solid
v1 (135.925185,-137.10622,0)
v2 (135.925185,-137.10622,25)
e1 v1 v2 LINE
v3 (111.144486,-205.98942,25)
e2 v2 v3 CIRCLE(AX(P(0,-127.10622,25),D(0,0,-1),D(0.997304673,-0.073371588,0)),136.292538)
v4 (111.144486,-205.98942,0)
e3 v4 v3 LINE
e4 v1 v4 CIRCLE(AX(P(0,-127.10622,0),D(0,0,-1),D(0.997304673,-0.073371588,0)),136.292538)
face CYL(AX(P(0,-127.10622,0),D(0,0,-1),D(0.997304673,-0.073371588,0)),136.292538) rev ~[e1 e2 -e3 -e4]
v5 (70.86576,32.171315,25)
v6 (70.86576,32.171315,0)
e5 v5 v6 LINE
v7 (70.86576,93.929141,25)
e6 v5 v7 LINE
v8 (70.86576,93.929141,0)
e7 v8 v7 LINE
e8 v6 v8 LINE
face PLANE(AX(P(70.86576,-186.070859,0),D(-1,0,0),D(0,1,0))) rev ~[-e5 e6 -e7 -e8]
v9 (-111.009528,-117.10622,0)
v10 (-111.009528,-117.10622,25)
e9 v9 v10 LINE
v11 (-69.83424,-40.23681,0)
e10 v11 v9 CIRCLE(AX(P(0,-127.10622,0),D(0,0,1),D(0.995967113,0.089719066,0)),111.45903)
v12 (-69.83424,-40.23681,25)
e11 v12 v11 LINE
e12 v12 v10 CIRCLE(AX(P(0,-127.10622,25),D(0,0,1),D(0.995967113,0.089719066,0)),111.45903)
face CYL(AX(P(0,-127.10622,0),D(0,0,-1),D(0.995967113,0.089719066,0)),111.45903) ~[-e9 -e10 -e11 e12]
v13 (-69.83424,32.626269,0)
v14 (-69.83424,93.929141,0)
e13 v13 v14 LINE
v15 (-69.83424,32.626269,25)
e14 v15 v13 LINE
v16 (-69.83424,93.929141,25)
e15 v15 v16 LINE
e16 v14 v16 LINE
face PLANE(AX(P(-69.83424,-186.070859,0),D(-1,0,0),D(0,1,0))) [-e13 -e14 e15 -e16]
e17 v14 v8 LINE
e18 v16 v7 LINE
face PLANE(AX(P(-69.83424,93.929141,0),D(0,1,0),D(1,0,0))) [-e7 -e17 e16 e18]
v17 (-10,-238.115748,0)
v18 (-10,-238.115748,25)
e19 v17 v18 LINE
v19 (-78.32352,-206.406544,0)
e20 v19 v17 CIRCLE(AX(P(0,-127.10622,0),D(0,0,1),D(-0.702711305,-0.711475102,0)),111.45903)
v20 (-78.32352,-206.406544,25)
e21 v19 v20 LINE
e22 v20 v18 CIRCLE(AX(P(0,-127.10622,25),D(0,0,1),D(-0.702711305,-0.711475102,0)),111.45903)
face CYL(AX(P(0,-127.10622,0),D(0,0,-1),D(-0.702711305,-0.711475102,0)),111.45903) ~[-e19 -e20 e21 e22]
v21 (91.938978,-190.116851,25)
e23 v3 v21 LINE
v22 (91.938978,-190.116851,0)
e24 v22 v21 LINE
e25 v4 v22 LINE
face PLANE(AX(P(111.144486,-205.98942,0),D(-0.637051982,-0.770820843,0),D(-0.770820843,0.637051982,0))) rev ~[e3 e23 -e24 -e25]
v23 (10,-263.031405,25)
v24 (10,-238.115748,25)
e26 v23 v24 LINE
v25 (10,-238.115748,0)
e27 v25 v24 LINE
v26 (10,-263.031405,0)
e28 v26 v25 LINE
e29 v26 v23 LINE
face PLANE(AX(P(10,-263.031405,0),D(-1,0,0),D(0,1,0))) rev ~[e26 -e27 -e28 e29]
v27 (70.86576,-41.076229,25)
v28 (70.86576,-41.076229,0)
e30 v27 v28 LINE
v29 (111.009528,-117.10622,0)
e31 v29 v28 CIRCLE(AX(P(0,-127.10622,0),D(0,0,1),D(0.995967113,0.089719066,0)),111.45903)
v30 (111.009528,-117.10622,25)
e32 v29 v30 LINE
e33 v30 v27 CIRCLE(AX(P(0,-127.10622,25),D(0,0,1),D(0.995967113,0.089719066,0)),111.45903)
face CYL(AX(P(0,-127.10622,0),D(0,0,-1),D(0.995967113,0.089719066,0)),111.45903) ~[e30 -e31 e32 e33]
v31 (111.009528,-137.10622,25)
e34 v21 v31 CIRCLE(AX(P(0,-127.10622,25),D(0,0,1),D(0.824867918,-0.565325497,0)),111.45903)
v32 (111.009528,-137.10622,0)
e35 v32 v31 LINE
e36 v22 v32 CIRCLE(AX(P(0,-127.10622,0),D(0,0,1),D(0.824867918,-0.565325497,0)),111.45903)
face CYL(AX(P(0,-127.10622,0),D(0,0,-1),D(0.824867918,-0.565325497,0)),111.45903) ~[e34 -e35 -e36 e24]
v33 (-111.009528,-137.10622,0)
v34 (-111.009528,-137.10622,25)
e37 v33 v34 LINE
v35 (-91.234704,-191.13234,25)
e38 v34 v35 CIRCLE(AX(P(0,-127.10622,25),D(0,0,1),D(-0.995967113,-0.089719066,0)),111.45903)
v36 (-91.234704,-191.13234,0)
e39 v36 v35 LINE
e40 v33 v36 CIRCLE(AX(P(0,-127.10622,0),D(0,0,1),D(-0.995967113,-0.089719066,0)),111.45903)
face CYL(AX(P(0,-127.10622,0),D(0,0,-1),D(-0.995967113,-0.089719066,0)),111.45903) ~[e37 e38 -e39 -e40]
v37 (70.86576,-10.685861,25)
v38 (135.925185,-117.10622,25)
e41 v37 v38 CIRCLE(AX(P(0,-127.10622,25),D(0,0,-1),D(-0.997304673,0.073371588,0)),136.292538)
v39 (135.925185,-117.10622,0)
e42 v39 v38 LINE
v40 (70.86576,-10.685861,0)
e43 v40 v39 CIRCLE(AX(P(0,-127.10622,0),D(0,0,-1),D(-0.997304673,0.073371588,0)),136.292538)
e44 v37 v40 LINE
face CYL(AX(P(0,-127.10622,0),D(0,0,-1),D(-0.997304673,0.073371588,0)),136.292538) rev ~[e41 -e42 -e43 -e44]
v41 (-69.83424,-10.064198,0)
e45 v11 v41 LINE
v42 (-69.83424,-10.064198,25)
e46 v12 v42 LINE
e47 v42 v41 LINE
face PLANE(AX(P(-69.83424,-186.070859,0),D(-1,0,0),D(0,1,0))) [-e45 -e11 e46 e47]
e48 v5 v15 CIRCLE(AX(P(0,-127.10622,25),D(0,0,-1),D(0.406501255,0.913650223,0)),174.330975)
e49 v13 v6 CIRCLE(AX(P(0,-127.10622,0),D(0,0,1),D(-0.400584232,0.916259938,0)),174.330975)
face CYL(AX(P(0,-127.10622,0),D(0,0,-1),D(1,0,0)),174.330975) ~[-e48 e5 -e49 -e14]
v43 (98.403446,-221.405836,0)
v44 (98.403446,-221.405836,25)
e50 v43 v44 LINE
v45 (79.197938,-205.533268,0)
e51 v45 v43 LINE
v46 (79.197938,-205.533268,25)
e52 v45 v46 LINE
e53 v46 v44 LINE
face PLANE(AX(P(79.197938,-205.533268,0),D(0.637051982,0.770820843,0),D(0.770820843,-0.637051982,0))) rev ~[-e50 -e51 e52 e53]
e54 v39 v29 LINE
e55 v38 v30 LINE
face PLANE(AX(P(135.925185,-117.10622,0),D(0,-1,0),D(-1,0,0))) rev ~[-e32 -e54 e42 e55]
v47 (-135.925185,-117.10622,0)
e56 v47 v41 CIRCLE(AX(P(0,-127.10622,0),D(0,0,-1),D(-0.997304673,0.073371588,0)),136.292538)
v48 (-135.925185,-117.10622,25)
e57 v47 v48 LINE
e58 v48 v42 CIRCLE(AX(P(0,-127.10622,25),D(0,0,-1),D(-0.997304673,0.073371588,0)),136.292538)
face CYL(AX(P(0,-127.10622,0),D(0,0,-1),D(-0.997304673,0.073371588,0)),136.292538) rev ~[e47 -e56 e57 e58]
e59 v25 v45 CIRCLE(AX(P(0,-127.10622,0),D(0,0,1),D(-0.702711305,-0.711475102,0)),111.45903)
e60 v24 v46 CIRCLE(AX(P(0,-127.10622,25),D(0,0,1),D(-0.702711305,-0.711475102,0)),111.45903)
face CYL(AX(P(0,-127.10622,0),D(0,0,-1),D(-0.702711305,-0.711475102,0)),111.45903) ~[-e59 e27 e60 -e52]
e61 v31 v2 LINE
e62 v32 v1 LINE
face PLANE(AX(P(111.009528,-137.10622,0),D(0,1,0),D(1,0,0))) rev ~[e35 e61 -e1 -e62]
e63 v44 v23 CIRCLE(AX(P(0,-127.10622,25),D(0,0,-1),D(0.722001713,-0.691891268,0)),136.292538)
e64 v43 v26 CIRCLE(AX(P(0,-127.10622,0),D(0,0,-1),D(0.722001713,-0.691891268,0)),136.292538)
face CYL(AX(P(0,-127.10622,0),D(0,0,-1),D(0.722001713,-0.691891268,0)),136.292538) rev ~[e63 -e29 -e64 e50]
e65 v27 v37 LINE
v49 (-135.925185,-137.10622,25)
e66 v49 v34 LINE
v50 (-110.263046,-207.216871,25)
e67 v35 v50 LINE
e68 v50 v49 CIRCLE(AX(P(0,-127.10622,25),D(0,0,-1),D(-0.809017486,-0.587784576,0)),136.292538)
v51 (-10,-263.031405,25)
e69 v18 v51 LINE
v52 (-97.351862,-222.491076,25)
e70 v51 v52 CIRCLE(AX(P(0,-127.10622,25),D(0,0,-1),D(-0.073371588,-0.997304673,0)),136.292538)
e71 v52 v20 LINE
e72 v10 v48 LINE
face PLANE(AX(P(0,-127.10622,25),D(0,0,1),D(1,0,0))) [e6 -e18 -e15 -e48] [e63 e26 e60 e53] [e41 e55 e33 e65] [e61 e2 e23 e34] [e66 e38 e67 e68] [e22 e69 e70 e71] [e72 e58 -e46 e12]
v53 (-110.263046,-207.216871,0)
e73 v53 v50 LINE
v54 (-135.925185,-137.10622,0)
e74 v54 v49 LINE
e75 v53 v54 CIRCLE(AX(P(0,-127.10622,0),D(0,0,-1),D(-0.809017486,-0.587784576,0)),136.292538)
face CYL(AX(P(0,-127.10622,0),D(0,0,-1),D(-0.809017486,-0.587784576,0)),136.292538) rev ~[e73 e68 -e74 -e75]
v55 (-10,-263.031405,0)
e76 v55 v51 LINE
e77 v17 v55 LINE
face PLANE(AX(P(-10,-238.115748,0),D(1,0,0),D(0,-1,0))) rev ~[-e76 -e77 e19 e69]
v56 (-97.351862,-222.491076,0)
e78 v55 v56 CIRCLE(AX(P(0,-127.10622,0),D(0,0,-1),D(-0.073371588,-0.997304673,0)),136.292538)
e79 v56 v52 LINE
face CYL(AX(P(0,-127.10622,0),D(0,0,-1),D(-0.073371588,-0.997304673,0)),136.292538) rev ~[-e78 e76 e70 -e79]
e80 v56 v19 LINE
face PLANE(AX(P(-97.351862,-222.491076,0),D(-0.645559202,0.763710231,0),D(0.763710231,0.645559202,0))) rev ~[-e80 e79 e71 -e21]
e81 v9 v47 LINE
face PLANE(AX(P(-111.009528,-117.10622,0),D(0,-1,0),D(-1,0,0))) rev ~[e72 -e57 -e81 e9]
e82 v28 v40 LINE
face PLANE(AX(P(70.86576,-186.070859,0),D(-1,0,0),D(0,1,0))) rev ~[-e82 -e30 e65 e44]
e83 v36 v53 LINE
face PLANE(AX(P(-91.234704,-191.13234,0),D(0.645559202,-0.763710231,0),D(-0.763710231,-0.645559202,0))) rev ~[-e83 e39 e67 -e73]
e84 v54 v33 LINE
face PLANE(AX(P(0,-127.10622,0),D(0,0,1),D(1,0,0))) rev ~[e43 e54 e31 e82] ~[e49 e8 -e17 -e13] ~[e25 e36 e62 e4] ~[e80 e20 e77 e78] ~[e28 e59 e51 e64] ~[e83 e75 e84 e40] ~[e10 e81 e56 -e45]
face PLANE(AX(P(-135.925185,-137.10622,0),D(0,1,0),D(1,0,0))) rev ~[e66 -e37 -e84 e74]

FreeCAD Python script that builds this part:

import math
import FreeCAD as App
import Part
import Sketcher

doc = App.newDocument("Part")
body = doc.addObject("PartDesign::Body", "Body")

sketch1 = doc.addObject("Sketcher::SketchObject", "Sketch")
body.addObject(sketch1)
sketch1.AttachmentSupport = (doc.XY_Plane, [""])
sketch1.MapMode = "FlatFace"
sketch1.addGeometry([
    Part.LineSegment(App.Vector(-70, 94, 0), App.Vector(-70, -186, 0)),
    Part.LineSegment(App.Vector(-70, -186, 0), App.Vector(71, -186, 0)),
    Part.LineSegment(App.Vector(71, -186, 0), App.Vector(71, 94, 0)),
    Part.LineSegment(App.Vector(71, 94, 0), App.Vector(-70, 94, 0)),
], False)
sketch1.addConstraint([
    Sketcher.Constraint("Coincident", 0, 2, 1, 1),
    Sketcher.Constraint("Coincident", 1, 2, 2, 1),
    Sketcher.Constraint("Coincident", 2, 2, 3, 1),
    Sketcher.Constraint("Coincident", 3, 2, 0, 1),
    Sketcher.Constraint("Vertical", 0),
    Sketcher.Constraint("Horizontal", 1),
    Sketcher.Constraint("Vertical", 2),
    Sketcher.Constraint("Horizontal", 3),
    Sketcher.Constraint("DistanceY", 0, 2, 0, 1, 280.0),
    Sketcher.Constraint("DistanceX", 1, 1, 1, 2, 140.7),
    Sketcher.Constraint("DistanceX", 0, 2, -1, 1, 69.83424),
    Sketcher.Constraint("DistanceY", 0, 2, -1, 1, 186.070859),
])
pad1 = doc.addObject("PartDesign::Pad", "Pad")
body.addObject(pad1)
pad1.Profile = sketch1
pad1.Length = 25

sketch2 = doc.addObject("Sketcher::SketchObject", "Sketch001")
body.addObject(sketch2)
sketch2.AttachmentSupport = (doc.XY_Plane, [""])
sketch2.MapMode = "FlatFace"
sketch2.addGeometry([
    Part.Circle(App.Vector(0, -127, 0), App.Vector(0, 0, 1), 174),
    Part.ArcOfCircle(Part.Circle(App.Vector(0, -127, 0), App.Vector(0, 0, 1), 136), math.radians(4), math.radians(176)),
    Part.LineSegment(App.Vector(136, -117, 0), App.Vector(111, -117, 0)),
    Part.ArcOfCircle(Part.Circle(App.Vector(0, -127, 0), App.Vector(0, 0, 1), 111), math.radians(5), math.radians(175)),
    Part.LineSegment(App.Vector(-111, -117, 0), App.Vector(-136, -117, 0)),
    Part.ArcOfCircle(Part.Circle(App.Vector(0, -127, 0), App.Vector(0, 0, 1), 136), math.radians(-35), math.radians(-4)),
    Part.LineSegment(App.Vector(111, -206, 0), App.Vector(92, -190, 0)),
    Part.ArcOfCircle(Part.Circle(App.Vector(0, -127, 0), App.Vector(0, 0, 1), 111), math.radians(-34), math.radians(-5)),
    Part.LineSegment(App.Vector(111, -137, 0), App.Vector(136, -137, 0)),
    Part.ArcOfCircle(Part.Circle(App.Vector(0, -127, 0), App.Vector(0, 0, 1), 136), math.radians(-86), math.radians(-44)),
    Part.LineSegment(App.Vector(10, -263, 0), App.Vector(10, -238, 0)),
    Part.ArcOfCircle(Part.Circle(App.Vector(0, -127, 0), App.Vector(0, 0, 1), 111), math.radians(-85), math.radians(-45)),
    Part.LineSegment(App.Vector(79, -206, 0), App.Vector(98, -221, 0)),
    Part.ArcOfCircle(Part.Circle(App.Vector(0, -127, 0), App.Vector(0, 0, 1), 111), math.radians(-175), math.radians(-145)),
    Part.LineSegment(App.Vector(-91, -191, 0), App.Vector(-110, -207, 0)),
    Part.ArcOfCircle(Part.Circle(App.Vector(0, -127, 0), App.Vector(0, 0, 1), 136), math.radians(-176), math.radians(-144)),
    Part.LineSegment(App.Vector(-136, -137, 0), App.Vector(-111, -137, 0)),
    Part.ArcOfCircle(Part.Circle(App.Vector(0, -127, 0), App.Vector(0, 0, 1), 111), math.radians(-135), math.radians(-95)),
    Part.LineSegment(App.Vector(-10, -238, 0), App.Vector(-10, -263, 0)),
    Part.ArcOfCircle(Part.Circle(App.Vector(0, -127, 0), App.Vector(0, 0, 1), 136), math.radians(-136), math.radians(-94)),
    Part.LineSegment(App.Vector(-97, -222, 0), App.Vector(-78, -206, 0)),
], False)
sketch2.addConstraint([
    Sketcher.Constraint("Coincident", 1, 1, 2, 1),
    Sketcher.Constraint("Coincident", 2, 2, 3, 1),
    Sketcher.Constraint("Coincident", 3, 2, 4, 1),
    Sketcher.Constraint("Coincident", 4, 2, 1, 2),
    Sketcher.Constraint("Coincident", 5, 1, 6, 1),
    Sketcher.Constraint("Coincident", 6, 2, 7, 1),
    Sketcher.Constraint("Coincident", 7, 2, 8, 1),
    Sketcher.Constraint("Coincident", 8, 2, 5, 2),
    Sketcher.Constraint("Coincident", 9, 1, 10, 1),
    Sketcher.Constraint("Coincident", 10, 2, 11, 1),
    Sketcher.Constraint("Coincident", 11, 2, 12, 1),
    Sketcher.Constraint("Coincident", 12, 2, 9, 2),
    Sketcher.Constraint("Coincident", 13, 2, 14, 1),
    Sketcher.Constraint("Coincident", 14, 2, 15, 2),
    Sketcher.Constraint("Coincident", 15, 1, 16, 1),
    Sketcher.Constraint("Coincident", 16, 2, 13, 1),
    Sketcher.Constraint("Coincident", 17, 2, 18, 1),
    Sketcher.Constraint("Coincident", 18, 2, 19, 2),
    Sketcher.Constraint("Coincident", 19, 1, 20, 1),
    Sketcher.Constraint("Coincident", 20, 2, 17, 1),
    Sketcher.Constraint("Horizontal", 2),
    Sketcher.Constraint("Horizontal", 4),
    Sketcher.Constraint("Horizontal", 8),
    Sketcher.Constraint("Vertical", 10),
    Sketcher.Constraint("Horizontal", 16),
    Sketcher.Constraint("Vertical", 18),
    Sketcher.Constraint("Coincident", 1, 3, 0, 3),
    Sketcher.Constraint("Coincident", 3, 3, 0, 3),
    Sketcher.Constraint("Coincident", 5, 3, 0, 3),
    Sketcher.Constraint("Coincident", 7, 3, 0, 3),
    Sketcher.Constraint("Coincident", 9, 3, 0, 3),
    Sketcher.Constraint("Coincident", 11, 3, 0, 3),
    Sketcher.Constraint("Coincident", 13, 3, 0, 3),
    Sketcher.Constraint("Coincident", 15, 3, 0, 3),
    Sketcher.Constraint("Coincident", 17, 3, 0, 3),
    Sketcher.Constraint("Coincident", 19, 3, 0, 3),
    Sketcher.Constraint("Equal", 1, 5),
    Sketcher.Constraint("Equal", 3, 7),
    Sketcher.Constraint("Equal", 5, 9),
    Sketcher.Constraint("Equal", 7, 11),
    Sketcher.Constraint("Equal", 11, 13),
    Sketcher.Constraint("Equal", 9, 15),
    Sketcher.Constraint("Equal", 13, 17),
    Sketcher.Constraint("Equal", 15, 19),
    Sketcher.Constraint("Symmetric", 2, 2, 3, 2, -2),
    Sketcher.Constraint("Parallel", 6, 12),
    Sketcher.Constraint("Parallel", 14, 20),
    Sketcher.Constraint("Horizontal", 8, 2, 15, 1),
    Sketcher.Constraint("Horizontal", 10, 2, 17, 2),
    Sketcher.Constraint("Vertical", 2, 2, 7, 2),
    Sketcher.Constraint("Equal", 16, 10),
    Sketcher.Constraint("Equal", 6, 12),
    Sketcher.Constraint("Equal", 12, 14),
    Sketcher.Constraint("Equal", 14, 20),
    Sketcher.Constraint("DistanceX", -1, 1, 9, 1, 10.0),
    Sketcher.Constraint("Diameter", 0, 348.66195),
    Sketcher.Constraint("Radius", 1, 136.292538),
    Sketcher.Constraint("Radius", 3, 111.45903),
    Sketcher.Constraint("DistanceY", 5, 1, 2, 2, 88.8832),
    Sketcher.Constraint("DistanceY", 0, 3, -1, 1, 127.10622),
    Sketcher.Constraint("DistanceY", 6, 2, -1, 1, 190.116851),
    Sketcher.Constraint("DistanceY", 13, 2, -1, 1, 191.13234),
])
pad2 = doc.addObject("PartDesign::Pad", "Pad001")
body.addObject(pad2)
pad2.Profile = sketch2
pad2.Length = 25

doc.recompute()
